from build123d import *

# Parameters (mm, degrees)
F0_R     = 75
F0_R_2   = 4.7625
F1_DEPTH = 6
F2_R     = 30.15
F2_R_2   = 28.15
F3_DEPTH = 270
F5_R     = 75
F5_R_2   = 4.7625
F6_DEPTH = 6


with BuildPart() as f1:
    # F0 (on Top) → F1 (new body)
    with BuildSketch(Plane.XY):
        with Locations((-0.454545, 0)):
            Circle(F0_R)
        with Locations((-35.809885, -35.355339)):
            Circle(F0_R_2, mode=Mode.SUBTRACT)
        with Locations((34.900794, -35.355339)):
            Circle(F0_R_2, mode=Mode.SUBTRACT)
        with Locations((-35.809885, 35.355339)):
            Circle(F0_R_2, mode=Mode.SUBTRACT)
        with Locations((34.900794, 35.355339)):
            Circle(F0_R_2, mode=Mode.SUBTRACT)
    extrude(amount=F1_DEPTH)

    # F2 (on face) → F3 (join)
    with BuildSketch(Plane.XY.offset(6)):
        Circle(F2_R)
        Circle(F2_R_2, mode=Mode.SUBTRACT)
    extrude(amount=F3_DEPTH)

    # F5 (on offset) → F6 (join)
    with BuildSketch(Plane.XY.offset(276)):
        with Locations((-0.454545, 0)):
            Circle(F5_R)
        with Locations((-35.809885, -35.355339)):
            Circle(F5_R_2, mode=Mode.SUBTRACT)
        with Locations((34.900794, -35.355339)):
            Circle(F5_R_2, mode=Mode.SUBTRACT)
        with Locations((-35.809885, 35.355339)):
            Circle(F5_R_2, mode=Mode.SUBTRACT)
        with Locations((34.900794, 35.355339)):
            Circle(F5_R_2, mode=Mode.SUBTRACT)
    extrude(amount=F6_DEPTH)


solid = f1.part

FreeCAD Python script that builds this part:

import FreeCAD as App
import Part
import Sketcher
Q = App.Units.Quantity

doc = App.newDocument("Part")
body = doc.addObject("PartDesign::Body", "Body")

sketch1 = body.newObject("Sketcher::SketchObject", "Sketch")
sketch1.AttachmentSupport = (doc.getObject("XY_Plane"), [""])
sketch1.MapMode = "FlatFace"
sketch1.addGeometry(Part.Circle(App.Vector(-0.5, 0, 0), App.Vector(0, 0, 1), 75), False)
sketch1.addGeometry(Part.Circle(App.Vector(-35.8, -35.4, 0), App.Vector(0, 0, 1), 4.8), False)
sketch1.addGeometry(Part.Circle(App.Vector(34.9, -35.4, 0), App.Vector(0, 0, 1), 4.8), False)
sketch1.addGeometry(Part.Circle(App.Vector(-35.8, 35.4, 0), App.Vector(0, 0, 1), 4.8), False)
sketch1.addGeometry(Part.Circle(App.Vector(34.9, 35.4, 0), App.Vector(0, 0, 1), 4.8), False)
sketch1.addConstraint(Sketcher.Constraint("Equal", 1, 2))
sketch1.addConstraint(Sketcher.Constraint("Equal", 2, 3))
sketch1.addConstraint(Sketcher.Constraint("Equal", 3, 4))
sketch1.addConstraint(Sketcher.Constraint("Symmetric", 1, 3, 3, 3, -1))
sketch1.addConstraint(Sketcher.Constraint("Symmetric", 2, 3, 4, 3, -1))
sketch1.addConstraint(Sketcher.Constraint("PointOnObject", 0, 3, -1))
sketch1.addConstraint(Sketcher.Constraint("Horizontal", 1, 3, 2, 3))
sketch1.addConstraint(Sketcher.Constraint("Diameter", 0, Q("150 mm")))
sketch1.addConstraint(Sketcher.Constraint("Diameter", 1, Q("9.525 mm")))
sketch1.addConstraint(Sketcher.Constraint("DistanceY", 1, 3, -1, 1, Q("35.355339 mm")))
sketch1.addConstraint(Sketcher.Constraint("DistanceX", 1, 3, 0, 3, Q("35.35534 mm")))
sketch1.addConstraint(Sketcher.Constraint("DistanceX", 0, 3, 2, 3, Q("35.355339 mm")))
sketch1.addConstraint(Sketcher.Constraint("DistanceX", 0, 3, -1, 1, Q("0.454545 mm")))
pad1 = body.newObject("PartDesign::Pad", "Pad")
pad1.Profile = sketch1
pad1.Length = 6

sketch2 = body.newObject("Sketcher::SketchObject", "Sketch001")
sketch2.AttachmentSupport = (doc.getObject("XY_Plane"), [""])
sketch2.MapMode = "FlatFace"
sketch2.AttachmentOffset = App.Placement(App.Vector(0, 0, 6), App.Rotation())
sketch2.addGeometry(Part.Circle(App.Vector(0, 0, 0), App.Vector(0, 0, 1), 30), False)
sketch2.addGeometry(Part.Circle(App.Vector(0, 0, 0), App.Vector(0, 0, 1), 28), False)
sketch2.addConstraint(Sketcher.Constraint("Coincident", 0, 3, -1, 1))
sketch2.addConstraint(Sketcher.Constraint("Coincident", 1, 3, -1, 1))
sketch2.addConstraint(Sketcher.Constraint("Diameter", 0, Q("60.3 mm")))
sketch2.addConstraint(Sketcher.Constraint("Diameter", 1, Q("56.3 mm")))
pad2 = body.newObject("PartDesign::Pad", "Pad001")
pad2.Profile = sketch2
pad2.Length = 270

sketch3 = body.newObject("Sketcher::SketchObject", "Sketch002")
sketch3.AttachmentSupport = (doc.getObject("XY_Plane"), [""])
sketch3.MapMode = "FlatFace"
sketch3.AttachmentOffset = App.Placement(App.Vector(0, 0, 276), App.Rotation())
sketch3.addGeometry(Part.Circle(App.Vector(-0.5, 0, 0), App.Vector(0, 0, 1), 75), False)
sketch3.addGeometry(Part.Circle(App.Vector(-35.8, -35.4, 0), App.Vector(0, 0, 1), 4.8), False)
sketch3.addGeometry(Part.Circle(App.Vector(34.9, -35.4, 0), App.Vector(0, 0, 1), 4.8), False)
sketch3.addGeometry(Part.Circle(App.Vector(-35.8, 35.4, 0), App.Vector(0, 0, 1), 4.8), False)
sketch3.addGeometry(Part.Circle(App.Vector(34.9, 35.4, 0), App.Vector(0, 0, 1), 4.8), False)
sketch3.addConstraint(Sketcher.Constraint("Equal", 1, 2))
sketch3.addConstraint(Sketcher.Constraint("Equal", 2, 3))
sketch3.addConstraint(Sketcher.Constraint("Equal", 3, 4))
sketch3.addConstraint(Sketcher.Constraint("Symmetric", 1, 3, 3, 3, -1))
sketch3.addConstraint(Sketcher.Constraint("Symmetric", 2, 3, 4, 3, -1))
sketch3.addConstraint(Sketcher.Constraint("PointOnObject", 0, 3, -1))
sketch3.addConstraint(Sketcher.Constraint("Horizontal", 1, 3, 2, 3))
sketch3.addConstraint(Sketcher.Constraint("Diameter", 0, Q("150 mm")))
sketch3.addConstraint(Sketcher.Constraint("Diameter", 1, Q("9.525 mm")))
sketch3.addConstraint(Sketcher.Constraint("DistanceY", 1, 3, -1, 1, Q("35.355339 mm")))
sketch3.addConstraint(Sketcher.Constraint("DistanceX", 1, 3, 0, 3, Q("35.35534 mm")))
sketch3.addConstraint(Sketcher.Constraint("DistanceX", 0, 3, 2, 3, Q("35.355339 mm")))
sketch3.addConstraint(Sketcher.Constraint("DistanceX", 0, 3, -1, 1, Q("0.454545 mm")))
pad3 = body.newObject("PartDesign::Pad", "Pad002")
pad3.Profile = sketch3
pad3.Length = 6

doc.recompute()
